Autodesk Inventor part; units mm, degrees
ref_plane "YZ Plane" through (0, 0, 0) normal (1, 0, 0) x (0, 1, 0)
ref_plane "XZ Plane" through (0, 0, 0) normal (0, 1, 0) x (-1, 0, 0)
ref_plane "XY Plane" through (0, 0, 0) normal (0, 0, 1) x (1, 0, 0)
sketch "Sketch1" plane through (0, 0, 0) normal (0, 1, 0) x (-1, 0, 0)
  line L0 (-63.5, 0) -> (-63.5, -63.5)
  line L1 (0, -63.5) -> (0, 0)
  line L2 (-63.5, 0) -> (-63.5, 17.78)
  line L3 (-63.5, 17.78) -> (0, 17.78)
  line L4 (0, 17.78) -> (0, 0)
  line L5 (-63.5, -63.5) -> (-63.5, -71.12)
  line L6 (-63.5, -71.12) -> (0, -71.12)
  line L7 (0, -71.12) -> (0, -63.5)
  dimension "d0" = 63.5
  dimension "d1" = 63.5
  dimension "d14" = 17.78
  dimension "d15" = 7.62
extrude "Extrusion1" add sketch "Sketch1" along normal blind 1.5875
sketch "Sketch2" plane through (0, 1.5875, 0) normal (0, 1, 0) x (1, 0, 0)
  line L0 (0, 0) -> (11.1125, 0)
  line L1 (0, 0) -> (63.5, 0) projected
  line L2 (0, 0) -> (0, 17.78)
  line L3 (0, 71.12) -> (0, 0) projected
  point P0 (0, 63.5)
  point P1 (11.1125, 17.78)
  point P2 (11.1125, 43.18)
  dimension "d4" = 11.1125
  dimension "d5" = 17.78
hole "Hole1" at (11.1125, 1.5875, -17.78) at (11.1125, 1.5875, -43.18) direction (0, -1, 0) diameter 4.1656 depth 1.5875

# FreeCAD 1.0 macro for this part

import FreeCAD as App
import Part
import Sketcher

V = App.Vector
Q = App.Units.Quantity

doc = App.newDocument("Part")
body = doc.addObject("PartDesign::Body", "Body")

# Sketch on XZ plane
sketch1 = body.newObject("Sketcher::SketchObject", "Sketch")
sketch1.AttachmentSupport = (doc.getObject("XZ_Plane"), [""])
sketch1.MapMode = "FlatFace"
sketch1.addGeometry(Part.LineSegment(V(63.5, 17.78, 0), V(63.5, -71.12, 0)), False)
sketch1.addGeometry(Part.LineSegment(V(63.5, -71.12, 0), V(0, -71.12, 0)), False)
sketch1.addGeometry(Part.LineSegment(V(0, -71.12, 0), V(0, 17.78, 0)), False)
sketch1.addGeometry(Part.LineSegment(V(0, 17.78, 0), V(63.5, 17.78, 0)), False)
sketch1.addConstraint(Sketcher.Constraint("Coincident", 0, 2, 1, 1))
sketch1.addConstraint(Sketcher.Constraint("Coincident", 1, 2, 2, 1))
sketch1.addConstraint(Sketcher.Constraint("Coincident", 2, 2, 3, 1))
sketch1.addConstraint(Sketcher.Constraint("Coincident", 3, 2, 0, 1))
sketch1.addConstraint(Sketcher.Constraint("Vertical", 0))
sketch1.addConstraint(Sketcher.Constraint("Horizontal", 1))
sketch1.addConstraint(Sketcher.Constraint("Vertical", 2))
sketch1.addConstraint(Sketcher.Constraint("Horizontal", 3))
sketch1.addConstraint(Sketcher.Constraint("PointOnObject", 1, 2, -2))
sketch1.addConstraint(Sketcher.Constraint("DistanceX", 1, 2, 1, 1, Q("2.5 in")))
sketch1.addConstraint(Sketcher.Constraint("DistanceY", -1, 1, 2, 2, Q("0.7 in")))
sketch1.addConstraint(Sketcher.Constraint("DistanceY", 0, 2, 0, 1, Q("3.5 in")))
pad1 = body.newObject("PartDesign::Pad", "Pad")
pad1.Profile = sketch1
pad1.Length = Q("0.0625 in")
pad1.Reversed = True

# Sketch on XZ plane
sketch2 = body.newObject("Sketcher::SketchObject", "Sketch001")
sketch2.AttachmentSupport = (doc.getObject("XZ_Plane"), [""])
sketch2.MapMode = "FlatFace"
sketch2.AttachmentOffset = App.Placement(V(0, 0, -0.0625 * 25.4), App.Rotation())
sketch2.addGeometry(Part.Circle(V(11.1125, -17.78, 0), V(0, 0, 1), 2.0828), False)
sketch2.addGeometry(Part.Circle(V(11.1125, -43.18, 0), V(0, 0, 1), 2.0828), False)
sketch2.addConstraint(Sketcher.Constraint("Equal", 0, 1))
sketch2.addConstraint(Sketcher.Constraint("Vertical", 0, 3, 1, 3))
sketch2.addConstraint(Sketcher.Constraint("Diameter", 0, Q("0.164 in")))
sketch2.addConstraint(Sketcher.Constraint("DistanceY", 1, 3, 0, 3, Q("1 in")))
sketch2.addConstraint(Sketcher.Constraint("DistanceY", 0, 3, -1, 1, Q("0.7 in")))
sketch2.addConstraint(Sketcher.Constraint("DistanceX", -1, 1, 0, 3, Q("0.4375 in")))
doc.recompute()
hole = body.newObject("PartDesign::Hole", "Hole")
hole.Profile = sketch2
hole.ThreadType = "None"
hole.Diameter = Q("0.164 in")
hole.DepthType = "Dimension"
hole.Depth = Q("0.0625 in")
hole.DrillPoint = "Flat"
hole.Reversed = True

doc.recompute()
